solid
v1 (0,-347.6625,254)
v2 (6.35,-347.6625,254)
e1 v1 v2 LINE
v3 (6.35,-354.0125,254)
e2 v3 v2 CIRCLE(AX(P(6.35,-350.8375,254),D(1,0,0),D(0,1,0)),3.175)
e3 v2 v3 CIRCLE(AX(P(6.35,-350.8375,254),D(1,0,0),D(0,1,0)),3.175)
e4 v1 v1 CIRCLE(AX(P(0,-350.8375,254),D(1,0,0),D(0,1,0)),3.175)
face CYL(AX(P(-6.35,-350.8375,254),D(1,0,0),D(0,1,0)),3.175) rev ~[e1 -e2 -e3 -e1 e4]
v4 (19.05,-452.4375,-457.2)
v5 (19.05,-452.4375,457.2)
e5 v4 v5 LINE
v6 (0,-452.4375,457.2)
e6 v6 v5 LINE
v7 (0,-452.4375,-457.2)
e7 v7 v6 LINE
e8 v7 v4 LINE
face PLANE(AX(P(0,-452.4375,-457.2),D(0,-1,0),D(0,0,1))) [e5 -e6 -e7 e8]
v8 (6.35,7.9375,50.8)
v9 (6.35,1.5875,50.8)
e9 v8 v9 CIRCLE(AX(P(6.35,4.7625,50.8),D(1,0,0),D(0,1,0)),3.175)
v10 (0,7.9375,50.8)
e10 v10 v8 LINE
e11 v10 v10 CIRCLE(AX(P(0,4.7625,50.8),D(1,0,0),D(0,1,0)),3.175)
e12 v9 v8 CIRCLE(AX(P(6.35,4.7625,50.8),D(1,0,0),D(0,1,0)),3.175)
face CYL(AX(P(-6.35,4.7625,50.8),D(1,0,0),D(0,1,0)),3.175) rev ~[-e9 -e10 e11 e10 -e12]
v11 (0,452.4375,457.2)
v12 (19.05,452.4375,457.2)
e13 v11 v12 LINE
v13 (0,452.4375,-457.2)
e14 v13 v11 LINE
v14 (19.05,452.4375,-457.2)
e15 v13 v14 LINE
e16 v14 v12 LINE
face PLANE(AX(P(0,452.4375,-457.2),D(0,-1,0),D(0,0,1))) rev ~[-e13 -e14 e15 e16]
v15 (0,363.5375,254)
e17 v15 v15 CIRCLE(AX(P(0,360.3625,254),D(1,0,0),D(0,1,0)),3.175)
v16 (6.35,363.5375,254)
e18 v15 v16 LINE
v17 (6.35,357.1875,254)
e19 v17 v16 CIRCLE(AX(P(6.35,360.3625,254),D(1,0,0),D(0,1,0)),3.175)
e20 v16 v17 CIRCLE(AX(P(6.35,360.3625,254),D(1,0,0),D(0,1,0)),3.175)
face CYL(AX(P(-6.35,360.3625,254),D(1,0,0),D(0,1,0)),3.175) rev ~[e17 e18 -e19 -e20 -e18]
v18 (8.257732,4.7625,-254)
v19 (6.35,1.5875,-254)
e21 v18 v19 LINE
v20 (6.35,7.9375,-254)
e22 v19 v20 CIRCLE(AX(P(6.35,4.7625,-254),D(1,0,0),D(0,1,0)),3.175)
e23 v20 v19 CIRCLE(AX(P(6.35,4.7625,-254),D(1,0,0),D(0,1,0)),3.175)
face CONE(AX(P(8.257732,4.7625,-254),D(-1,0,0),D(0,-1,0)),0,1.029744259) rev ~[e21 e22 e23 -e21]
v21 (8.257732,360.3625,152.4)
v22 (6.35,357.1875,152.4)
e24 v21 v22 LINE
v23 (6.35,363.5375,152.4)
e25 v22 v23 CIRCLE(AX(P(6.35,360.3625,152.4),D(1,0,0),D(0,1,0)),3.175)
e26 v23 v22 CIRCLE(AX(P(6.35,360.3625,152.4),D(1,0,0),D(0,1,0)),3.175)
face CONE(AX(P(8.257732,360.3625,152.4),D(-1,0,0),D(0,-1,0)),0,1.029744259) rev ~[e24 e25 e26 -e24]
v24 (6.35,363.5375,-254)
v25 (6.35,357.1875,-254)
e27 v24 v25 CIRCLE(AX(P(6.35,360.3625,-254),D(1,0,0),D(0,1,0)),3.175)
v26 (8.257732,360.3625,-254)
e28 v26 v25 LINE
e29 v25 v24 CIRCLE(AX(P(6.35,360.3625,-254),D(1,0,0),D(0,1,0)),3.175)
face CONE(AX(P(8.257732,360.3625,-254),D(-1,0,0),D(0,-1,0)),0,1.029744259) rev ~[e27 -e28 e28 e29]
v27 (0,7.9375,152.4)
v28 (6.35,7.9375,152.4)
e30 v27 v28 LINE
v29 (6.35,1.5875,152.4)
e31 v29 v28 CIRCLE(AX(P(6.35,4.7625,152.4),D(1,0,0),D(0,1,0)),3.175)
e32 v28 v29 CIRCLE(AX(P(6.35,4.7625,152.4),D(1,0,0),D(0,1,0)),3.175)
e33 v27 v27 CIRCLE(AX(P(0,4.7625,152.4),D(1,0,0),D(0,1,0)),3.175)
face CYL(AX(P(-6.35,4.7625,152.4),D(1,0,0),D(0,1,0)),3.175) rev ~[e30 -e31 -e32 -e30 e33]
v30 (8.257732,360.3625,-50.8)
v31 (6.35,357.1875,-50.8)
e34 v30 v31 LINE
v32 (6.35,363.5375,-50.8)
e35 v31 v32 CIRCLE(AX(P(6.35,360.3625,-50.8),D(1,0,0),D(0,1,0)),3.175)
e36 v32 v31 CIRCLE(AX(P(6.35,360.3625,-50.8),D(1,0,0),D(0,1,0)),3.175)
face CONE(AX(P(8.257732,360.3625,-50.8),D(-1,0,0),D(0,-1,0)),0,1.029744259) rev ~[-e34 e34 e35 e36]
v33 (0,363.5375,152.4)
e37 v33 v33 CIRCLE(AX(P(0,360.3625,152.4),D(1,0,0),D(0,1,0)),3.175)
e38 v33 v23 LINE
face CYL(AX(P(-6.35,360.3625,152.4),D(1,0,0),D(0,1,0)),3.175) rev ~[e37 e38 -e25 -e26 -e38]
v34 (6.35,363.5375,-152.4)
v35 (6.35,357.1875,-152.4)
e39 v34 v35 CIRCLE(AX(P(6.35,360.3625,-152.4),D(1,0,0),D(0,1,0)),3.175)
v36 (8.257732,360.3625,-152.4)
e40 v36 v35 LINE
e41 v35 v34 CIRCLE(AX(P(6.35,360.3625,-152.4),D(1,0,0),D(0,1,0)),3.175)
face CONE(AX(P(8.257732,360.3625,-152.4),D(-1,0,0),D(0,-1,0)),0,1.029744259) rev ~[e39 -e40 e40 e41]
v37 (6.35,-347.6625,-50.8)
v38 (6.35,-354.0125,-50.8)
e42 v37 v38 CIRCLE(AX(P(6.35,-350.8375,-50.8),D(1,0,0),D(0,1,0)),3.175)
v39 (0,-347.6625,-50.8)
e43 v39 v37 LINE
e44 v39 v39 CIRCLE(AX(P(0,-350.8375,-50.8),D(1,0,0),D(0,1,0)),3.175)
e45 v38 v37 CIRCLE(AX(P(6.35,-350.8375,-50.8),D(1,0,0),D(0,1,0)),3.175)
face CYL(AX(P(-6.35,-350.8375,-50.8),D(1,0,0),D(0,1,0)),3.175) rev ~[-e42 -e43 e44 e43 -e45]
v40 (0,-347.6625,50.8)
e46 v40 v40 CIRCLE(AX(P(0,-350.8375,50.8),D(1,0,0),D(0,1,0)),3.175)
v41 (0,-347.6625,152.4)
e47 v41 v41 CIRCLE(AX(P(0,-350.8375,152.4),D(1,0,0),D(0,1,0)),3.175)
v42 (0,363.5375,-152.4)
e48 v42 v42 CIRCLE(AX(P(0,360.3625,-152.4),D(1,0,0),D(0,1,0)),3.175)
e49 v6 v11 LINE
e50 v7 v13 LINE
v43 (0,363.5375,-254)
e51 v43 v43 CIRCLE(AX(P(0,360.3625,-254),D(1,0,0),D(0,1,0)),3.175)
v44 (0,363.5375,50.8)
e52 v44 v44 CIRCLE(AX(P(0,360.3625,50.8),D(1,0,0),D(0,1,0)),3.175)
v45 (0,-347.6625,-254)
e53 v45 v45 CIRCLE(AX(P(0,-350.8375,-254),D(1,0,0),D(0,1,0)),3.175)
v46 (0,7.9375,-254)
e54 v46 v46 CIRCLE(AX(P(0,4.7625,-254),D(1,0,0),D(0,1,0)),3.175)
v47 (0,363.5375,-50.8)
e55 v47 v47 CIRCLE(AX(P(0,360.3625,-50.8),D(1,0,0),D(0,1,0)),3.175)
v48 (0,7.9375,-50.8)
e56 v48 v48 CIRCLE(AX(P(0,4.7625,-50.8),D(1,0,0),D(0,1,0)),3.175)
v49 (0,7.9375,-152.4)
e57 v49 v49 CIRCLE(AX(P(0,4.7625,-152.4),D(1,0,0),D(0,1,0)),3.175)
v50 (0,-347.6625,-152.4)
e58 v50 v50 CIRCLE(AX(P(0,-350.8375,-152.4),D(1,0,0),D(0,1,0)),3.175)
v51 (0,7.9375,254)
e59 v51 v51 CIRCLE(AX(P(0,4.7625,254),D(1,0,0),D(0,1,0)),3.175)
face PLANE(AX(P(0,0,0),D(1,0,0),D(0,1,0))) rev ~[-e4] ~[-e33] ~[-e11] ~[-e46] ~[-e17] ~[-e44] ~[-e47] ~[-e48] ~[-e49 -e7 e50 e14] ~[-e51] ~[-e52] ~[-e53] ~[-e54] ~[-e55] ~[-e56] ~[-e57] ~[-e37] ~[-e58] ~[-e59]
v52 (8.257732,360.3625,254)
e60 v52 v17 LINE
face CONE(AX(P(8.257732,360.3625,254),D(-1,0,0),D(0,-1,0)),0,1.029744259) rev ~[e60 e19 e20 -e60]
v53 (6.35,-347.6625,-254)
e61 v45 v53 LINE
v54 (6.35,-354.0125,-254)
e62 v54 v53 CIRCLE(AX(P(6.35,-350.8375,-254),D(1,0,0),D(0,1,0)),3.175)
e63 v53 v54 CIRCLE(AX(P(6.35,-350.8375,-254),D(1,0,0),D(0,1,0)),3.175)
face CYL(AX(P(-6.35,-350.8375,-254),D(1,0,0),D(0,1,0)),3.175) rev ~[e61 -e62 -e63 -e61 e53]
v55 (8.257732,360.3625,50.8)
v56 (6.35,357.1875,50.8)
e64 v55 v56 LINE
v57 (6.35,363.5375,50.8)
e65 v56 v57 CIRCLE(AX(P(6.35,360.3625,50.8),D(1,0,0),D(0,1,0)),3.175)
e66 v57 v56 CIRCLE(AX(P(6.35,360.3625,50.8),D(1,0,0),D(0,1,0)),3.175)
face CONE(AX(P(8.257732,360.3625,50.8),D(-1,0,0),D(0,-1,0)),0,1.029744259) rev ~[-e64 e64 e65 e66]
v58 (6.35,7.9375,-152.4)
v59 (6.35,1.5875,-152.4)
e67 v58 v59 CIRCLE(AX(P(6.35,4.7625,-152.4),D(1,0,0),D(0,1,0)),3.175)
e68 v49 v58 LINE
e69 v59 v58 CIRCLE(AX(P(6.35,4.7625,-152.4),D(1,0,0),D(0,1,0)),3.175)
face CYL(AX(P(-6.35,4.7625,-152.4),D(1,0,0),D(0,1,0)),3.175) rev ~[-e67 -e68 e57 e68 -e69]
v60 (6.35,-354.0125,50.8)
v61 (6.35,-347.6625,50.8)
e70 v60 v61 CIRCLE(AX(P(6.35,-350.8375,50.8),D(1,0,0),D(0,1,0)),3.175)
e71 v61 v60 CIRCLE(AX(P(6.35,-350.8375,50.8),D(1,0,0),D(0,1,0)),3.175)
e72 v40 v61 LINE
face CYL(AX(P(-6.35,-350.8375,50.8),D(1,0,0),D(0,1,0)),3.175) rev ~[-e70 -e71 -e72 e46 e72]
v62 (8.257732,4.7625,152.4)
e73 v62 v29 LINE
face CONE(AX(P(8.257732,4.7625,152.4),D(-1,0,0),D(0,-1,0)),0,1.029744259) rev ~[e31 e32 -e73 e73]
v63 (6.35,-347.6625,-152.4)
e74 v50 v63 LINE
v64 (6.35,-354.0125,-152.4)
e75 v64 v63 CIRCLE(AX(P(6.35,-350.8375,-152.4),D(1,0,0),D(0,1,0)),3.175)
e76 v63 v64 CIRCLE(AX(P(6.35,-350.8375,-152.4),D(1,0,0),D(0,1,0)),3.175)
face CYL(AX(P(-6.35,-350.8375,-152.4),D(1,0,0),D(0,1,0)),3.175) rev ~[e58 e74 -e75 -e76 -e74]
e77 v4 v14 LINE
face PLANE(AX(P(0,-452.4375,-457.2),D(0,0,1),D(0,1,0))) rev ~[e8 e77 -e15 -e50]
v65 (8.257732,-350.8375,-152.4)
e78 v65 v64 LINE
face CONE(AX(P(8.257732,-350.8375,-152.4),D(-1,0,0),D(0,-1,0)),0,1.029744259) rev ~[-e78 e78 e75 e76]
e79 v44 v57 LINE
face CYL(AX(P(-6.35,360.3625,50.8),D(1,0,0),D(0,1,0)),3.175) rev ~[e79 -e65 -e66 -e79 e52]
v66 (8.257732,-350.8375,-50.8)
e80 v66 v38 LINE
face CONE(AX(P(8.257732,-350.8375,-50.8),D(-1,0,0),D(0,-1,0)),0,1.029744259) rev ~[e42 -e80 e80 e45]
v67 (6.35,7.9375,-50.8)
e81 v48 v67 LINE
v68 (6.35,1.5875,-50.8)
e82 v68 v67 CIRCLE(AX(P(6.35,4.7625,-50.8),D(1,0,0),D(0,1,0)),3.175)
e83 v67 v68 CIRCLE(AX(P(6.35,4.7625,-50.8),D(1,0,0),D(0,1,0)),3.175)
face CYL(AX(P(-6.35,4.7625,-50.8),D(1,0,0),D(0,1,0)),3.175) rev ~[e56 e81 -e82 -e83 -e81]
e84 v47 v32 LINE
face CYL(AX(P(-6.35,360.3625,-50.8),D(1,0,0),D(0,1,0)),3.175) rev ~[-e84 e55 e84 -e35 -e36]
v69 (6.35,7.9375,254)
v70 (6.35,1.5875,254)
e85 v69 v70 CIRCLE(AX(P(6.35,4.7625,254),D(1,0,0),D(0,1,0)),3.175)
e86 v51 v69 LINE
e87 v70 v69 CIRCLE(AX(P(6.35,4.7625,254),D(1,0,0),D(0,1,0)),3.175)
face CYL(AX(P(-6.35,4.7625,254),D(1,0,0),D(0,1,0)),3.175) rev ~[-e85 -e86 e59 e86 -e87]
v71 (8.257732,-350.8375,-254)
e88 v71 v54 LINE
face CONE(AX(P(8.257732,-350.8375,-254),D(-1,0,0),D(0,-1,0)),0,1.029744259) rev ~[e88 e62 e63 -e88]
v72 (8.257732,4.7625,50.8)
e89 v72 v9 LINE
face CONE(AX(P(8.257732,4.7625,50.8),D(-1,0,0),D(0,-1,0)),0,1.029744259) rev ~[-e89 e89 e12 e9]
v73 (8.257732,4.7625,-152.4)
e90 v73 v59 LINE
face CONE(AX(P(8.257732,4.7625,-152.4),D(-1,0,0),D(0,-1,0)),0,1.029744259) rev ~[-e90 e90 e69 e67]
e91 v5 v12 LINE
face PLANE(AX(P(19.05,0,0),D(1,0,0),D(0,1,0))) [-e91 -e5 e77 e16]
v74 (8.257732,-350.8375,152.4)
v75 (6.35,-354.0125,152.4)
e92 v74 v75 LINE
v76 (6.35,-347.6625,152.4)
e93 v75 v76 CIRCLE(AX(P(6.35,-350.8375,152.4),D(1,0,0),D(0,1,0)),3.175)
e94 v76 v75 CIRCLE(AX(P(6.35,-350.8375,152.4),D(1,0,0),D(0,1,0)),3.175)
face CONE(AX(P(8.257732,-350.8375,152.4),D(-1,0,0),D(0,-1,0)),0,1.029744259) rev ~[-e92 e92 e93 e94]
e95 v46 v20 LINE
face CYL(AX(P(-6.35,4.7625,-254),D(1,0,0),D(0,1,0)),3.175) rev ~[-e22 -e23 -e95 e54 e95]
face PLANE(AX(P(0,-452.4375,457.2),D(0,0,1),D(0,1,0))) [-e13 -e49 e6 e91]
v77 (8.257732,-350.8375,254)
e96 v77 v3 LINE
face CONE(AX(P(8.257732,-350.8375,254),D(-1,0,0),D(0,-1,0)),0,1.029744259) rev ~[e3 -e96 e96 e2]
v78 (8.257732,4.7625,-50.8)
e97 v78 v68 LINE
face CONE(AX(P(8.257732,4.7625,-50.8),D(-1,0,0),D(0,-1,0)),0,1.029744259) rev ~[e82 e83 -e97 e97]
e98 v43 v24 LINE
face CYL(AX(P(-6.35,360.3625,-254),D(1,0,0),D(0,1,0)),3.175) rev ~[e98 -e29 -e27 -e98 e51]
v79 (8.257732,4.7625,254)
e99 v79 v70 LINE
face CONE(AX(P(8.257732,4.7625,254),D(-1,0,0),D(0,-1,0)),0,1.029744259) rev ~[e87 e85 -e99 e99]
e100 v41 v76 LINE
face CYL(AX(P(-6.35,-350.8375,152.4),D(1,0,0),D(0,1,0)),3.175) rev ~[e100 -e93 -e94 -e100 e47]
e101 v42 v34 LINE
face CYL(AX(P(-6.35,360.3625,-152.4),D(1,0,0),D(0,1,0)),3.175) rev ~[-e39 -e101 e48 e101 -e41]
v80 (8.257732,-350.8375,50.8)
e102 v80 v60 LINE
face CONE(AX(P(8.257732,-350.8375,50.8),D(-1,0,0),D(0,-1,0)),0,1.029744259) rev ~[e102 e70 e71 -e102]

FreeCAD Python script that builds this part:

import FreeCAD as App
import Part
import Sketcher

V = App.Vector
Q = App.Units.Quantity


def add_polygon(sketch, points):
    """Adds a closed chain of lines whose ends are joined by coincident constraints."""
    first, n = sketch.GeometryCount, len(points)
    for a, b in zip(points, points[1:] + points[:1]):
        sketch.addGeometry(Part.LineSegment(App.Vector(*a, 0), App.Vector(*b, 0)), False)
    for i in range(n):
        sketch.addConstraint(Sketcher.Constraint("Coincident", first + i, 2, first + (i + 1) % n, 1))

doc = App.newDocument("Part")
params = doc.addObject("Spreadsheet::Sheet", "Params")
for row, (alias, value) in enumerate([
    ("sketch1_height", "36 in"),
    ("sketch1_width", "35.625 in"),
    ("pad1_length", "0.75 in"),
    ("sketch2_diameter", "0.25 in"),
    ("hole_diameter", "0.25 in"),
    ("hole_depth", "0.25 in"),
], start=1):
    params.set(f"A{row}", alias)
    params.set(f"B{row}", "=" + value)
    params.setAlias(f"B{row}", alias)

body = doc.addObject("PartDesign::Body", "Body")

# Sketch on YZ plane
sketch1 = body.newObject("Sketcher::SketchObject", "Sketch")
sketch1.AttachmentSupport = (doc.getObject("YZ_Plane"), [""])
sketch1.MapMode = "FlatFace"
add_polygon(sketch1, [(-452, 457), (-452, -457), (452, -457), (452, 457)])  # lines 0-3
sketch1.addConstraint([
    Sketcher.Constraint("Vertical", 0),
    Sketcher.Constraint("Horizontal", 1),
    Sketcher.Constraint("Vertical", 2),
    Sketcher.Constraint("Horizontal", 3),
    Sketcher.Constraint("Symmetric", 0, 2, 2, 2, -1, 1),
    Sketcher.Constraint("DistanceY", 0, 2, 0, 1, Q("36 in")),
    Sketcher.Constraint("DistanceX", 1, 1, 1, 2, Q("35.625 in")),
])
sketch1.setExpression("Constraints[9]", "Params.sketch1_height")
sketch1.setExpression("Constraints[10]", "Params.sketch1_width")
pad1 = body.newObject("PartDesign::Pad", "Pad")
pad1.Profile = sketch1
pad1.setExpression("Length", "Params.pad1_length")

# Sketch on YZ plane
sketch2 = body.newObject("Sketcher::SketchObject", "Sketch001")
sketch2.AttachmentSupport = (doc.getObject("YZ_Plane"), [""])
sketch2.MapMode = "FlatFace"
sketch2.addGeometry([
    Part.Circle(V(360.4, 152.4, 0), V(0, 0, 1), 3.2),  # 0
    Part.Circle(V(-350.8, 152.4, 0), V(0, 0, 1), 3.2),  # 1
    Part.Circle(V(4.8, 152.4, 0), V(0, 0, 1), 3.2),  # 2
    Part.Circle(V(360.4, -254, 0), V(0, 0, 1), 3.2),  # 3
    Part.Circle(V(360.4, -50.8, 0), V(0, 0, 1), 3.2),  # 4
    Part.Circle(V(4.8, 50.8, 0), V(0, 0, 1), 3.2),  # 5
    Part.Circle(V(-350.8, 254, 0), V(0, 0, 1), 3.2),  # 6
    Part.Circle(V(-350.8, -152.4, 0), V(0, 0, 1), 3.2),  # 7
    Part.Circle(V(-350.8, 50.8, 0), V(0, 0, 1), 3.2),  # 8
    Part.Circle(V(4.8, 254, 0), V(0, 0, 1), 3.2),  # 9
    Part.Circle(V(4.8, -50.8, 0), V(0, 0, 1), 3.2),  # 10
    Part.Circle(V(360.4, 50.8, 0), V(0, 0, 1), 3.2),  # 11
    Part.Circle(V(360.4, 254, 0), V(0, 0, 1), 3.2),  # 12
    Part.Circle(V(-350.8, -254, 0), V(0, 0, 1), 3.2),  # 13
    Part.Circle(V(4.8, -254, 0), V(0, 0, 1), 3.2),  # 14
    Part.Circle(V(4.8, -152.4, 0), V(0, 0, 1), 3.2),  # 15
    Part.Circle(V(-350.8, -50.8, 0), V(0, 0, 1), 3.2),  # 16
    Part.Circle(V(360.4, -152.4, 0), V(0, 0, 1), 3.2),  # 17
], False)
sketch2.addConstraint([
    Sketcher.Constraint("Equal", 0, 1),
    Sketcher.Constraint("Equal", 1, 2),
    Sketcher.Constraint("Equal", 2, 3),
    Sketcher.Constraint("Equal", 3, 4),
    Sketcher.Constraint("Equal", 4, 5),
    Sketcher.Constraint("Equal", 5, 6),
    Sketcher.Constraint("Equal", 6, 7),
    Sketcher.Constraint("Equal", 7, 8),
    Sketcher.Constraint("Equal", 8, 9),
    Sketcher.Constraint("Equal", 9, 10),
    Sketcher.Constraint("Equal", 10, 11),
    Sketcher.Constraint("Equal", 11, 12),
    Sketcher.Constraint("Equal", 12, 13),
    Sketcher.Constraint("Equal", 13, 14),
    Sketcher.Constraint("Equal", 14, 15),
    Sketcher.Constraint("Equal", 15, 16),
    Sketcher.Constraint("Equal", 16, 17),
    Sketcher.Constraint("Symmetric", 1, 3, 7, 3, -1),
    Sketcher.Constraint("Symmetric", 5, 3, 10, 3, -1),
    Sketcher.Constraint("Symmetric", 4, 3, 11, 3, -1),
    Sketcher.Constraint("Symmetric", 3, 3, 12, 3, -1),
    Sketcher.Constraint("Symmetric", 6, 3, 13, 3, -1),
    Sketcher.Constraint("Symmetric", 9, 3, 14, 3, -1),
    Sketcher.Constraint("Symmetric", 2, 3, 15, 3, -1),
    Sketcher.Constraint("Symmetric", 8, 3, 16, 3, -1),
    Sketcher.Constraint("Symmetric", 0, 3, 17, 3, -1),
    Sketcher.Constraint("Horizontal", 0, 3, 1, 3),
    Sketcher.Constraint("Horizontal", 1, 3, 2, 3),
    Sketcher.Constraint("Horizontal", 5, 3, 8, 3),
    Sketcher.Constraint("Horizontal", 6, 3, 9, 3),
    Sketcher.Constraint("Horizontal", 4, 3, 10, 3),
    Sketcher.Constraint("Horizontal", 9, 3, 12, 3),
    Sketcher.Constraint("Vertical", 0, 3, 3, 3),
    Sketcher.Constraint("Vertical", 3, 3, 4, 3),
    Sketcher.Constraint("Vertical", 2, 3, 5, 3),
    Sketcher.Constraint("Vertical", 1, 3, 6, 3),
    Sketcher.Constraint("Vertical", 7, 3, 8, 3),
    Sketcher.Constraint("Vertical", 5, 3, 9, 3),
    Sketcher.Constraint("Diameter", 0, Q("0.25 in")),
    Sketcher.Constraint("DistanceY", -1, 1, 0, 3, Q("6 in")),
    Sketcher.Constraint("DistanceY", 3, 3, -1, 1, Q("10 in")),
    Sketcher.Constraint("DistanceY", 4, 3, -1, 1, Q("2 in")),
    Sketcher.Constraint("DistanceX", 1, 3, 0, 3, Q("28 in")),
    Sketcher.Constraint("DistanceX", 1, 3, 2, 3, Q("14 in")),
    Sketcher.Constraint("DistanceX", -1, 1, 0, 3, Q("14.1875 in")),
])
sketch2.setExpression("Constraints[38]", "Params.sketch2_diameter")
doc.recompute()
hole = body.newObject("PartDesign::Hole", "Hole")
hole.Profile = sketch2
hole.ThreadType = "None"
hole.setExpression("Diameter", "Params.hole_diameter")
hole.DepthType = "Dimension"
hole.setExpression("Depth", "Params.hole_depth")
hole.DrillPoint = "Angled"
hole.DrillPointAngle = 118
hole.Reversed = True

doc.recompute()
